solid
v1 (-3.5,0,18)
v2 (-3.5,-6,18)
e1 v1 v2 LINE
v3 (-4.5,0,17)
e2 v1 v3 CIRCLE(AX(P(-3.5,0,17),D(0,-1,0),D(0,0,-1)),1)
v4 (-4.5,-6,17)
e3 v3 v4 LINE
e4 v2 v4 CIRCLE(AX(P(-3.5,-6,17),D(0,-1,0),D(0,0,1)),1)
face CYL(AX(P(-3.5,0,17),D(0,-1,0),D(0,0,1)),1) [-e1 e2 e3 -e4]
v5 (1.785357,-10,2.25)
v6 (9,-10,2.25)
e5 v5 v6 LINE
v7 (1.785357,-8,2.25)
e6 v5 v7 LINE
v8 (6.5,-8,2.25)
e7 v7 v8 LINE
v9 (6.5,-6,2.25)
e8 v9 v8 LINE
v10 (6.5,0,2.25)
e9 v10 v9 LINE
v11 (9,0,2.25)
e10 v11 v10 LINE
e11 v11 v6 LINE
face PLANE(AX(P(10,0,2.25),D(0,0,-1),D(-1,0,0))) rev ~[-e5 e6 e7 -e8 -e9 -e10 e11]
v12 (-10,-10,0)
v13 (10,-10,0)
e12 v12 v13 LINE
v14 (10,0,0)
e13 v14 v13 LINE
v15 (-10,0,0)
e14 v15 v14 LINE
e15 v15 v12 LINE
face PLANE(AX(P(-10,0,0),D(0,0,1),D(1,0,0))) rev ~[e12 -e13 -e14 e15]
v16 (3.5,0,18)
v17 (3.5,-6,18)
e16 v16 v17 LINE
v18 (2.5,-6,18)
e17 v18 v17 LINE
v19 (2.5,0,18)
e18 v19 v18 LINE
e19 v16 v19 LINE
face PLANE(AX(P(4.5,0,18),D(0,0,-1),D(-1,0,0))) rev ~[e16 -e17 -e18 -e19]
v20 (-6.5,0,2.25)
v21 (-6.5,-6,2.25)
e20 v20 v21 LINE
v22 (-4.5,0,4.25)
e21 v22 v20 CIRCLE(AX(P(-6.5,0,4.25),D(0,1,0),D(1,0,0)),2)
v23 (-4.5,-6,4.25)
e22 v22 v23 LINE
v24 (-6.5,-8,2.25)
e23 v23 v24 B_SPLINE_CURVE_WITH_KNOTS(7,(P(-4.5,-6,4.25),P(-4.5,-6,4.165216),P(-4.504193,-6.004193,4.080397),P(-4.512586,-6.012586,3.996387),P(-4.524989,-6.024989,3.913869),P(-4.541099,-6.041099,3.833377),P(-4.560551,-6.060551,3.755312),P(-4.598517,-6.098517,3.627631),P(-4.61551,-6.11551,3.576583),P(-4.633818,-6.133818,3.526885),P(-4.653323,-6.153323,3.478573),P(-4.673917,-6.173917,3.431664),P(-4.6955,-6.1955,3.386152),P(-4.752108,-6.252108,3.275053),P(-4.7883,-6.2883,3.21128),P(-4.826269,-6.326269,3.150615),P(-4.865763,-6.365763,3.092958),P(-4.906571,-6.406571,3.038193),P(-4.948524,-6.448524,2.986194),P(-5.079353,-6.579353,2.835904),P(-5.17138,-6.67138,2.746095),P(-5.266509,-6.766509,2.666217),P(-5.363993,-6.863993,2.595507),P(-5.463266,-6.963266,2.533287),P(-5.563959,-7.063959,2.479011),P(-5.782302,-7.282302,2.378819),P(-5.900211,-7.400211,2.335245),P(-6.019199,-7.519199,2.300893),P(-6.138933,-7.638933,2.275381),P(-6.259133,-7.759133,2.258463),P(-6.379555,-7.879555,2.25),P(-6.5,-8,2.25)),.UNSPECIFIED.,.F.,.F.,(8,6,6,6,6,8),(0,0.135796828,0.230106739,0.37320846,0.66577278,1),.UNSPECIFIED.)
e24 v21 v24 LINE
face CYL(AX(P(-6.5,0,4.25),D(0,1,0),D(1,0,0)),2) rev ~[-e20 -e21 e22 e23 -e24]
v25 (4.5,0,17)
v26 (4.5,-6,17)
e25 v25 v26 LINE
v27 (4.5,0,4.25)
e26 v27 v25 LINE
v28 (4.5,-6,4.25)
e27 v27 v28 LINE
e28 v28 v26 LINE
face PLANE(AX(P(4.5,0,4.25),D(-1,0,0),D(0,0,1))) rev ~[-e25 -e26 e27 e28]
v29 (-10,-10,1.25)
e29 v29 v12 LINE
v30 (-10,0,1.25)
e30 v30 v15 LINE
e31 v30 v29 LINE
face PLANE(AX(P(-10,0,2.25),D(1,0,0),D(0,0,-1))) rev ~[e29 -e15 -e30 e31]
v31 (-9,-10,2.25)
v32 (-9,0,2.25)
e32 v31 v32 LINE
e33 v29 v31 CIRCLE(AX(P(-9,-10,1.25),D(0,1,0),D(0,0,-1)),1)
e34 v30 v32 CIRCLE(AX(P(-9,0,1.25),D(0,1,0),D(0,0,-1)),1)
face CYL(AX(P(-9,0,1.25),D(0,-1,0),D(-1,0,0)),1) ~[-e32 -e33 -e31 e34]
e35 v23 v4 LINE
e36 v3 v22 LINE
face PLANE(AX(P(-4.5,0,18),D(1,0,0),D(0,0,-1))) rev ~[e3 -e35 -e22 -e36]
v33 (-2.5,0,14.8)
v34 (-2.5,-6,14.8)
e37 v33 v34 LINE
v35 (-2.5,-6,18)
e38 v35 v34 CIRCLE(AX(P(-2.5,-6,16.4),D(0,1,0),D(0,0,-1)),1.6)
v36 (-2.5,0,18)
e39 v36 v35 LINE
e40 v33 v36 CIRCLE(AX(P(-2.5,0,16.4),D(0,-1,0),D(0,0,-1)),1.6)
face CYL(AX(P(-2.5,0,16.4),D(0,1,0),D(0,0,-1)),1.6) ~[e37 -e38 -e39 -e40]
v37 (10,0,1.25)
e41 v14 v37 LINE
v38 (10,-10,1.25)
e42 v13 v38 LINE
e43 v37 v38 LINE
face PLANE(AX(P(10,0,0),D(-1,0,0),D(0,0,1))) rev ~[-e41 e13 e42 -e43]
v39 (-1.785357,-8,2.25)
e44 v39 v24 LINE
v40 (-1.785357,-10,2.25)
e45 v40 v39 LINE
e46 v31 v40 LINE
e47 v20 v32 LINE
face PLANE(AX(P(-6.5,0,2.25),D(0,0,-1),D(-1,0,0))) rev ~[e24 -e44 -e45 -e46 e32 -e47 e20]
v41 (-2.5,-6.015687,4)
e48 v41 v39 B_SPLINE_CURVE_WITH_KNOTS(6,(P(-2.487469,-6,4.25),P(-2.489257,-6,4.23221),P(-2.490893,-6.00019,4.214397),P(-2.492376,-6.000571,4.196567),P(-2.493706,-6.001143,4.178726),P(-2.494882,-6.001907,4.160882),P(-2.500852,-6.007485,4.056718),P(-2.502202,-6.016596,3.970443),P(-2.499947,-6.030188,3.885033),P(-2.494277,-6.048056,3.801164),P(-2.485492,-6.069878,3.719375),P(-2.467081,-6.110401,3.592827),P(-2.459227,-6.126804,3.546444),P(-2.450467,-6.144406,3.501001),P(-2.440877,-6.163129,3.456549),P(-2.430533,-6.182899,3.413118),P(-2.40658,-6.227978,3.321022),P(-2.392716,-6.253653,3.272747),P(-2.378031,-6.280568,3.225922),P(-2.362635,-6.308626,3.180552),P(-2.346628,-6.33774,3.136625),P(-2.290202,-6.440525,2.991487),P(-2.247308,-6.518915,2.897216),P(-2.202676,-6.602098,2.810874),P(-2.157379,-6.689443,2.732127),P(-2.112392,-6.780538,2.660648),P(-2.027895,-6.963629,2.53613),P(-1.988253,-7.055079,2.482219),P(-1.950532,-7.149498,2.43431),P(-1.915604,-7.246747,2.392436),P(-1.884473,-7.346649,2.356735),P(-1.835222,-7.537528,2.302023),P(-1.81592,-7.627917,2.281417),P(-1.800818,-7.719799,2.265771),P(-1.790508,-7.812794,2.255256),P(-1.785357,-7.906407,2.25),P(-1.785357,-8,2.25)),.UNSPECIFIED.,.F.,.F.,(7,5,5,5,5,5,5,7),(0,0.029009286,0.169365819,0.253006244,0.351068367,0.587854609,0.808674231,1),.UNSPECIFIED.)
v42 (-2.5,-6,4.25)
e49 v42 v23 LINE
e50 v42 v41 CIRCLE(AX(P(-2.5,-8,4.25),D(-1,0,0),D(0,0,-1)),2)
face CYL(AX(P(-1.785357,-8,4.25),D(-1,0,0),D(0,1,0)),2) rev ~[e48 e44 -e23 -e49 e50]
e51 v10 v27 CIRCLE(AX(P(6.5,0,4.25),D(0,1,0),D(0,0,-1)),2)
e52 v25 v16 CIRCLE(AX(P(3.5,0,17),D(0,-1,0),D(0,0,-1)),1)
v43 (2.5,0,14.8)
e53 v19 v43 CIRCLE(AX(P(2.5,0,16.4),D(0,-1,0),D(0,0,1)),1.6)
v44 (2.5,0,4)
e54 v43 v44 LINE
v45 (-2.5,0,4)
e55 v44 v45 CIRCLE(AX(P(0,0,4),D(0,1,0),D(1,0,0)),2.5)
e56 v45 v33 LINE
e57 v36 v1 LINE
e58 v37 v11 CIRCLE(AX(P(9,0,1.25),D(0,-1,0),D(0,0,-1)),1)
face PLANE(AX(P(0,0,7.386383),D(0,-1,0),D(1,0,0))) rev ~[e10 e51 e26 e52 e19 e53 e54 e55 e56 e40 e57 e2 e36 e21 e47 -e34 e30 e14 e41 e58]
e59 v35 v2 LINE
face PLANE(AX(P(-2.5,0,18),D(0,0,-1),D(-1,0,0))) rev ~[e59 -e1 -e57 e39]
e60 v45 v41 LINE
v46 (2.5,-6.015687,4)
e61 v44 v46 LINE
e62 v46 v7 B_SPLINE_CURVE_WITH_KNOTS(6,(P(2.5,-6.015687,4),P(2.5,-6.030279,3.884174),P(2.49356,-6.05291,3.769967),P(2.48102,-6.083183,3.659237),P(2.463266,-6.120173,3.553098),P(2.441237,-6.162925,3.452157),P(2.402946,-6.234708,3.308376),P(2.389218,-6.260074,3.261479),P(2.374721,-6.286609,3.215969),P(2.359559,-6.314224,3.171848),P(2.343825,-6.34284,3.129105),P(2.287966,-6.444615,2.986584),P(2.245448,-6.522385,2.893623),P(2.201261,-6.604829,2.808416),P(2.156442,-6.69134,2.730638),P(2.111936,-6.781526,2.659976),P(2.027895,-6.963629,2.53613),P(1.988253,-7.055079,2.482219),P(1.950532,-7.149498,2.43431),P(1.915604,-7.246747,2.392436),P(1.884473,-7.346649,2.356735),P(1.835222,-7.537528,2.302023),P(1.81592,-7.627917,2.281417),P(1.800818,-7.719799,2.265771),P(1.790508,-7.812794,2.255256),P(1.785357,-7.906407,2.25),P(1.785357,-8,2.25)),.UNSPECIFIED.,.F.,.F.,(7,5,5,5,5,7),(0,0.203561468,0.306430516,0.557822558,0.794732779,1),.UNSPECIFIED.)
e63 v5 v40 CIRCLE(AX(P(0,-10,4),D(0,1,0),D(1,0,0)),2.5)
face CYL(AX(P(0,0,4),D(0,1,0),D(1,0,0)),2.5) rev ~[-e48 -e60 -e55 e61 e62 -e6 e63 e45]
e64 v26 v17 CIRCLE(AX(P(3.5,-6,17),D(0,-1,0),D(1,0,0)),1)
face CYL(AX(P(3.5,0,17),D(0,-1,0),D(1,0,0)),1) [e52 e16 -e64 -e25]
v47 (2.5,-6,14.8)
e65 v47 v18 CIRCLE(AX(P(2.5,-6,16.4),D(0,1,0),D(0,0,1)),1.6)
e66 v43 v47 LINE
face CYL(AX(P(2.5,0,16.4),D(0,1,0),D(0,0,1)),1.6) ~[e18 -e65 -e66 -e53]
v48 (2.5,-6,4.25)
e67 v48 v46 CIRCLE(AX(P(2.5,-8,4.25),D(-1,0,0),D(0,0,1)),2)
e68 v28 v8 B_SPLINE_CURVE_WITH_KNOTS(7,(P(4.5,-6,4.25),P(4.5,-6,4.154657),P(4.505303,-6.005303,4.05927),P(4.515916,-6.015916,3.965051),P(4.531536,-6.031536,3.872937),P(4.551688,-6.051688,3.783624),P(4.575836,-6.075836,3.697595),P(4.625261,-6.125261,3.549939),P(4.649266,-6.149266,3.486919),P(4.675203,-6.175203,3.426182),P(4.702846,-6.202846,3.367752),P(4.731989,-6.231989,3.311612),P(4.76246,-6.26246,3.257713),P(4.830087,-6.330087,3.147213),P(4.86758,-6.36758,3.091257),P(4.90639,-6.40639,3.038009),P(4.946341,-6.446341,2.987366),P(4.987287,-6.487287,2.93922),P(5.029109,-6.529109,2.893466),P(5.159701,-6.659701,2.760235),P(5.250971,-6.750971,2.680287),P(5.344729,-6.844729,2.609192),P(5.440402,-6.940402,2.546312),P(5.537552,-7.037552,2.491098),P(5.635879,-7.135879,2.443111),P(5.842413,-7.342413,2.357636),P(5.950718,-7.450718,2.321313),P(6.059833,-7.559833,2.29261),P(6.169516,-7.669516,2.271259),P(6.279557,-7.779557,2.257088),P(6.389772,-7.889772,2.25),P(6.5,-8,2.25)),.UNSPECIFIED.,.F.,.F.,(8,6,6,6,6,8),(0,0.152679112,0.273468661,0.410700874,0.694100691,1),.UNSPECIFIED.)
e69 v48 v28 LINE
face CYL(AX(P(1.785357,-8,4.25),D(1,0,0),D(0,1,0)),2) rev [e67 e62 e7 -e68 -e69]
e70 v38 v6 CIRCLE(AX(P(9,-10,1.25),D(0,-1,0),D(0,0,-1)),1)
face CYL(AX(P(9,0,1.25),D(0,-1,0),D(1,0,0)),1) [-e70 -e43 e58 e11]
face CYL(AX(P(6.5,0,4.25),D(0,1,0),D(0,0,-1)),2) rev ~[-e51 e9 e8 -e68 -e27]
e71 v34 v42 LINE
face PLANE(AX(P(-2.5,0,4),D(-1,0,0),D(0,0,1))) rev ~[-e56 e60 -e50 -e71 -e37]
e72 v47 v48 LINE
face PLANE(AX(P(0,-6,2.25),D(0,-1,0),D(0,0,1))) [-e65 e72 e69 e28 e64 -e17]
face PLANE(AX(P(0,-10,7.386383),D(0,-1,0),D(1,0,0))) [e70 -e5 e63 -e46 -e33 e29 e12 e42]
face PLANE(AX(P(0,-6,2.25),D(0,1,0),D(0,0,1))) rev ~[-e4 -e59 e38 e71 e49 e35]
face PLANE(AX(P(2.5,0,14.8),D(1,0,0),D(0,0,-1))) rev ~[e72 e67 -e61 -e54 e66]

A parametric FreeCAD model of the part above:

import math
import FreeCAD as App
import Part
import Sketcher
from FreeCAD import Vector
Q = App.Units.Quantity


def edges_at(feature, points):
    """Names of the edges that pass closest to the given points."""
    edges = feature.Shape.Edges
    near = lambda p: min(range(len(edges)), key=lambda i: edges[i].distToShape(Part.Vertex(*p))[0])
    return sorted({f"Edge{near(p) + 1}" for p in points})

doc = App.newDocument("Part")
body = doc.addObject("PartDesign::Body", "Body")

# Sketch on XZ plane
sketch1 = body.newObject("Sketcher::SketchObject", "Sketch")
sketch1.AttachmentSupport = (doc.getObject("XZ_Plane"), [""])
sketch1.MapMode = "FlatFace"
sketch1.addGeometry([
    Part.LineSegment(Vector(-10, 0, 0), Vector(10, 0, 0)),  # 0
    Part.LineSegment(Vector(10, 0, 0), Vector(10, 2.2, 0)),  # 1
    Part.LineSegment(Vector(10, 2.2, 0), Vector(6.5, 2.2, 0)),  # 2
    Part.ArcOfCircle(Part.Circle(Vector(6.5, 4.2, 0), Vector(0, 0, 1), 2), math.radians(180), math.radians(270)),  # 3
    Part.LineSegment(Vector(4.5, 4.2, 0), Vector(4.5, 18, 0)),  # 4
    Part.LineSegment(Vector(4.5, 18, 0), Vector(2.5, 18, 0)),  # 5
    Part.ArcOfCircle(Part.Circle(Vector(2.5, 16.4, 0), Vector(0, 0, 1), 1.6), math.radians(90), math.radians(270)),  # 6
    Part.LineSegment(Vector(2.5, 14.8, 0), Vector(2.5, 4, 0)),  # 7
    Part.ArcOfCircle(Part.Circle(Vector(0, 4, 0), Vector(0, 0, 1), 2.5), math.radians(180), math.radians(360)),  # 8
    Part.LineSegment(Vector(-2.5, 4, 0), Vector(-2.5, 14.8, 0)),  # 9
    Part.ArcOfCircle(Part.Circle(Vector(-2.5, 16.4, 0), Vector(0, 0, 1), 1.6), math.radians(-90), math.radians(90)),  # 10
    Part.LineSegment(Vector(-2.5, 18, 0), Vector(-4.5, 18, 0)),  # 11
    Part.LineSegment(Vector(-4.5, 18, 0), Vector(-4.5, 4.2, 0)),  # 12
    Part.ArcOfCircle(Part.Circle(Vector(-6.5, 4.2, 0), Vector(0, 0, 1), 2), math.radians(-90), math.radians(0)),  # 13
    Part.LineSegment(Vector(-6.5, 2.2, 0), Vector(-10, 2.2, 0)),  # 14
    Part.LineSegment(Vector(-10, 2.2, 0), Vector(-10, 0, 0)),  # 15
], False)
sketch1.addConstraint([
    Sketcher.Constraint("Coincident", 0, 2, 1, 1),
    Sketcher.Constraint("Coincident", 1, 2, 2, 1),
    Sketcher.Constraint("Tangent", 2, 2, 3, 2),
    Sketcher.Constraint("Tangent", 3, 1, 4, 1),
    Sketcher.Constraint("Coincident", 4, 2, 5, 1),
    Sketcher.Constraint("Tangent", 5, 2, 6, 1),
    Sketcher.Constraint("Coincident", 6, 2, 7, 1),
    Sketcher.Constraint("Tangent", 7, 2, 8, 2),
    Sketcher.Constraint("Tangent", 8, 1, 9, 1),
    Sketcher.Constraint("Coincident", 9, 2, 10, 1),
    Sketcher.Constraint("Tangent", 10, 2, 11, 1),
    Sketcher.Constraint("Coincident", 11, 2, 12, 1),
    Sketcher.Constraint("Tangent", 12, 2, 13, 2),
    Sketcher.Constraint("Tangent", 13, 1, 14, 1),
    Sketcher.Constraint("Coincident", 14, 2, 15, 1),
    Sketcher.Constraint("Coincident", 15, 2, 0, 1),
    Sketcher.Constraint("Horizontal", 0),
    Sketcher.Constraint("Vertical", 1),
    Sketcher.Constraint("Horizontal", 2),
    Sketcher.Constraint("Vertical", 4),
    Sketcher.Constraint("Horizontal", 5),
    Sketcher.Constraint("Vertical", 7),
    Sketcher.Constraint("Vertical", 9),
    Sketcher.Constraint("Horizontal", 11),
    Sketcher.Constraint("Vertical", 12),
    Sketcher.Constraint("Horizontal", 14),
    Sketcher.Constraint("Vertical", 15),
    Sketcher.Constraint("Equal", 6, 10),
    Sketcher.Constraint("Equal", 3, 13),
    Sketcher.Constraint("Symmetric", 0, 2, 15, 2, -1, 1),
    Sketcher.Constraint("Symmetric", 6, 3, 10, 3, -2),
    Sketcher.Constraint("Symmetric", 3, 3, 13, 3, -2),
    Sketcher.Constraint("PointOnObject", 8, 3, -2),
    Sketcher.Constraint("Vertical", 5, 2, 6, 2),
    Sketcher.Constraint("Radius", 3, Q("2 mm")),
    Sketcher.Constraint("Radius", 6, Q("1.6 mm")),
    Sketcher.Constraint("Radius", 8, Q("2.5 mm")),
    Sketcher.Constraint("DistanceX", 0, 1, 0, 2, Q("20 mm")),
    Sketcher.Constraint("DistanceX", 5, 2, 5, 1, Q("2 mm")),
    Sketcher.Constraint("DistanceY", 7, 2, 7, 1, Q("10.8 mm")),
    Sketcher.Constraint("DistanceY", -1, 1, 8, 3, Q("4 mm")),
    Sketcher.Constraint("DistanceY", 1, 1, 1, 2, Q("2.25 mm")),
])
pad1 = body.newObject("PartDesign::Pad", "Pad")
pad1.Profile = sketch1
pad1.Length = 10
doc.recompute()

fillet = body.newObject("PartDesign::Fillet", "Fillet")
fillet.Base = (pad1, edges_at(pad1, [(4.5, -5, 18)]))
fillet.Radius = 1
doc.recompute()

fillet2 = body.newObject("PartDesign::Fillet", "Fillet001")
fillet2.Base = (fillet, edges_at(fillet, [(-4.5, -5, 18)]))
fillet2.Radius = 1
doc.recompute()

fillet3 = body.newObject("PartDesign::Fillet", "Fillet002")
fillet3.Base = (fillet2, edges_at(fillet2, [(10, -5, 2.25)]))
fillet3.Radius = 1
doc.recompute()

fillet4 = body.newObject("PartDesign::Fillet", "Fillet003")
fillet4.Base = (fillet3, edges_at(fillet3, [(-10, -5, 2.25)]))
fillet4.Radius = 1

# Sketch on YZ plane
sketch2 = body.newObject("Sketcher::SketchObject", "Sketch001")
sketch2.AttachmentSupport = (doc.getObject("YZ_Plane"), [""])
sketch2.MapMode = "FlatFace"
sketch2.addGeometry([
    Part.LineSegment(Vector(-10, 18, 0), Vector(-10, 2.2, 0)),
    Part.LineSegment(Vector(-10, 2.2, 0), Vector(-6, 2.2, 0)),
    Part.LineSegment(Vector(-6, 2.2, 0), Vector(-6, 18, 0)),
    Part.LineSegment(Vector(-6, 18, 0), Vector(-10, 18, 0)),
], False)
sketch2.addConstraint([
    Sketcher.Constraint("Coincident", 0, 2, 1, 1),
    Sketcher.Constraint("Coincident", 1, 2, 2, 1),
    Sketcher.Constraint("Coincident", 2, 2, 3, 1),
    Sketcher.Constraint("Coincident", 3, 2, 0, 1),
    Sketcher.Constraint("Vertical", 0),
    Sketcher.Constraint("Horizontal", 1),
    Sketcher.Constraint("Vertical", 2),
    Sketcher.Constraint("Horizontal", 3),
    Sketcher.Constraint("DistanceX", 1, 1, 1, 2, Q("4 mm")),
    Sketcher.Constraint("DistanceX", 0, 2, -1, 1, Q("10 mm")),
    Sketcher.Constraint("DistanceY", -1, 1, 2, 2, Q("18 mm")),
    Sketcher.Constraint("DistanceY", 0, 2, 0, 1, Q("15.75 mm")),
])
pocket1 = body.newObject("PartDesign::Pocket", "Pocket")
pocket1.Profile = sketch2
pocket1.Type = "ThroughAll"
pocket1.Midplane = True
doc.recompute()

fillet5 = body.newObject("PartDesign::Fillet", "Fillet004")
fillet5.Base = (pocket1, edges_at(pocket1, [(-4.143, -6, 2.25), (4.143, -6, 2.25)]))
fillet5.Radius = 2

doc.recompute()
